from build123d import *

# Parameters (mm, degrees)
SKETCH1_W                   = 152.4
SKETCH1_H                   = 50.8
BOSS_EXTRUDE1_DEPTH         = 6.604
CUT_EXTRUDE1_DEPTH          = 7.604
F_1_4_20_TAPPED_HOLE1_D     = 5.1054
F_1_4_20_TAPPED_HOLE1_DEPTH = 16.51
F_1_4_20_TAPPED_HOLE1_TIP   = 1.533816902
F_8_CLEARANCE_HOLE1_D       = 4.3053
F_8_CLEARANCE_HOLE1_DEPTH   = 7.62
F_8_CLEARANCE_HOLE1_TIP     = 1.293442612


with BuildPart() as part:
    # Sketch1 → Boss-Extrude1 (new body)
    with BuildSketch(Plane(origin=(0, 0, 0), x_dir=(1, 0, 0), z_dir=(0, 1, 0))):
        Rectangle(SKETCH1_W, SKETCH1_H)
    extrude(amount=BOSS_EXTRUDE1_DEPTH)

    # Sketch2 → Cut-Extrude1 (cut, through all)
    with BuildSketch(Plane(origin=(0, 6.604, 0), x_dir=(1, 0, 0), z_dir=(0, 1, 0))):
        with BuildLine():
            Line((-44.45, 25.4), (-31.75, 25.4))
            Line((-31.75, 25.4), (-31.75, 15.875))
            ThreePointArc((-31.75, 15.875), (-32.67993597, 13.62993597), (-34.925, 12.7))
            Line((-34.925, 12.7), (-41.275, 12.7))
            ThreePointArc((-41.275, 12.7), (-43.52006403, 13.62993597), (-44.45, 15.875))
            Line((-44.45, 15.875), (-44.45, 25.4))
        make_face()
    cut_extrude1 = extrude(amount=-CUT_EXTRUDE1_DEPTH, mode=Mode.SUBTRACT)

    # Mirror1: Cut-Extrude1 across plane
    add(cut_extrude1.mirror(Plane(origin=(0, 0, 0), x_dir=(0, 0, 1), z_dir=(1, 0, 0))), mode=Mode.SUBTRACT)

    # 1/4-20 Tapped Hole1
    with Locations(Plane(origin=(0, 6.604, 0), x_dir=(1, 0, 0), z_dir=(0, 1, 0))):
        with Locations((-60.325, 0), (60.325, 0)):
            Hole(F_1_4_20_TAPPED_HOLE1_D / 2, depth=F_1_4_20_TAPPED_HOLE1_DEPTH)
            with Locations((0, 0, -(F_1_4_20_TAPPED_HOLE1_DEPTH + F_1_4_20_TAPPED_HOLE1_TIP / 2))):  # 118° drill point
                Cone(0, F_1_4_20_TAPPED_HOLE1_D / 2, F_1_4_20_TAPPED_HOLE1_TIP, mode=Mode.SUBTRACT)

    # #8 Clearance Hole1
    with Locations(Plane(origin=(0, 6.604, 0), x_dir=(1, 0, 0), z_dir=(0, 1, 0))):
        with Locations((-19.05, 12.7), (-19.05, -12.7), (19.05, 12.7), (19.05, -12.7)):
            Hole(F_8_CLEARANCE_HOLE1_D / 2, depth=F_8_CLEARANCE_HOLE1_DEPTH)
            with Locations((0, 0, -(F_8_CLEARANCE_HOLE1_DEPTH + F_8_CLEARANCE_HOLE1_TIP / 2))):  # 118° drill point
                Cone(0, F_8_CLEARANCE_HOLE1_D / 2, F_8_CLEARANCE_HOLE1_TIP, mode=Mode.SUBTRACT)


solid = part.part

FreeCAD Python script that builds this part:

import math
import FreeCAD as App
import Part
import Sketcher
from FreeCAD import Vector
Q = App.Units.Quantity


def add_polygon(sketch, points):
    """Adds a closed chain of lines whose ends are joined by coincident constraints."""
    first, n = sketch.GeometryCount, len(points)
    for a, b in zip(points, points[1:] + points[:1]):
        sketch.addGeometry(Part.LineSegment(App.Vector(*a, 0), App.Vector(*b, 0)), False)
    for i in range(n):
        sketch.addConstraint(Sketcher.Constraint("Coincident", first + i, 2, first + (i + 1) % n, 1))

doc = App.newDocument("Part")
body = doc.addObject("PartDesign::Body", "Body")

sketch1 = body.newObject("Sketcher::SketchObject", "Sketch")
sketch1.AttachmentSupport = (doc.getObject("XZ_Plane"), [""])
sketch1.MapMode = "FlatFace"
add_polygon(sketch1, [(-76.2, -25.4), (-76.2, 25.4), (76.2, 25.4), (76.2, -25.4)])
sketch1.addConstraint(Sketcher.Constraint("Vertical", 0))
sketch1.addConstraint(Sketcher.Constraint("Horizontal", 1))
sketch1.addConstraint(Sketcher.Constraint("Vertical", 2))
sketch1.addConstraint(Sketcher.Constraint("Horizontal", 3))
sketch1.addConstraint(Sketcher.Constraint("Symmetric", 0, 2, 2, 2, -1, 1))
sketch1.addConstraint(Sketcher.Constraint("DistanceX", 1, 1, 1, 2, Q("6 in")))
sketch1.addConstraint(Sketcher.Constraint("DistanceY", 0, 1, 0, 2, Q("2 in")))
pad1 = body.newObject("PartDesign::Pad", "Pad")
pad1.Profile = sketch1
pad1.Length = Q("0.26 in")
pad1.Reversed = True

sketch2 = body.newObject("Sketcher::SketchObject", "Sketch001")
sketch2.AttachmentSupport = (doc.getObject("XZ_Plane"), [""])
sketch2.MapMode = "FlatFace"
sketch2.AttachmentOffset = App.Placement(Vector(0, 0, -0.26 * 25.4), App.Rotation())
sketch2.addGeometry(Part.LineSegment(Vector(-31.75, -25.4, 0), Vector(-44.45, -25.4, 0)), False)
sketch2.addGeometry(Part.LineSegment(Vector(-44.45, -25.4, 0), Vector(-44.45, -15.875, 0)), False)
sketch2.addGeometry(Part.ArcOfCircle(Part.Circle(Vector(-41.275, -15.875, 0), Vector(0, 0, 1), 3.175), math.radians(90), math.radians(180)), False)
sketch2.addGeometry(Part.LineSegment(Vector(-41.275, -12.7, 0), Vector(-34.925, -12.7, 0)), False)
sketch2.addGeometry(Part.ArcOfCircle(Part.Circle(Vector(-34.925, -15.875, 0), Vector(0, 0, 1), 3.175), math.radians(0), math.radians(90)), False)
sketch2.addGeometry(Part.LineSegment(Vector(-31.75, -15.875, 0), Vector(-31.75, -25.4, 0)), False)
sketch2.addConstraint(Sketcher.Constraint("Coincident", 0, 2, 1, 1))
sketch2.addConstraint(Sketcher.Constraint("Tangent", 1, 2, 2, 2))
sketch2.addConstraint(Sketcher.Constraint("Tangent", 2, 1, 3, 1))
sketch2.addConstraint(Sketcher.Constraint("Tangent", 3, 2, 4, 2))
sketch2.addConstraint(Sketcher.Constraint("Tangent", 4, 1, 5, 1))
sketch2.addConstraint(Sketcher.Constraint("Coincident", 5, 2, 0, 1))
sketch2.addConstraint(Sketcher.Constraint("Horizontal", 0))
sketch2.addConstraint(Sketcher.Constraint("Vertical", 1))
sketch2.addConstraint(Sketcher.Constraint("Horizontal", 3))
sketch2.addConstraint(Sketcher.Constraint("Vertical", 5))
sketch2.addConstraint(Sketcher.Constraint("Equal", 2, 4))
sketch2.addConstraint(Sketcher.Constraint("DistanceX", 0, 2, 0, 1, Q("0.5 in")))
sketch2.addConstraint(Sketcher.Constraint("DistanceY", 0, 2, -1, 1, Q("1 in")))
sketch2.addConstraint(Sketcher.Constraint("Radius", 2, Q("0.125 in")))
sketch2.addConstraint(Sketcher.Constraint("DistanceY", 2, 1, -1, 1, Q("0.5 in")))
sketch2.addConstraint(Sketcher.Constraint("DistanceX", 0, 2, -1, 1, Q("1.75 in")))
pocket1 = body.newObject("PartDesign::Pocket", "Pocket")
pocket1.Profile = sketch2
pocket1.Type = "ThroughAll"
pocket1.Reversed = True
doc.recompute()

mirrored = body.newObject("PartDesign::Mirrored", "Mirrored")
mirrored.Originals = [pocket1]
mirrored.MirrorPlane = (doc.getObject("YZ_Plane"), [""])
body.Tip = mirrored

sketch3 = body.newObject("Sketcher::SketchObject", "Sketch002")
sketch3.AttachmentSupport = (doc.getObject("XZ_Plane"), [""])
sketch3.MapMode = "FlatFace"
sketch3.AttachmentOffset = App.Placement(Vector(0, 0, -0.26 * 25.4), App.Rotation())
sketch3.addGeometry(Part.Circle(Vector(-60.325, 0, 0), Vector(0, 0, 1), 2.5527), False)
sketch3.addGeometry(Part.Circle(Vector(60.325, 0, 0), Vector(0, 0, 1), 2.5527), False)
sketch3.addConstraint(Sketcher.Constraint("Equal", 0, 1))
sketch3.addConstraint(Sketcher.Constraint("Symmetric", 0, 3, 1, 3, -1, 1))
sketch3.addConstraint(Sketcher.Constraint("PointOnObject", 0, 3, -1))
sketch3.addConstraint(Sketcher.Constraint("Diameter", 0, Q("0.201 in")))
sketch3.addConstraint(Sketcher.Constraint("DistanceX", 0, 3, 1, 3, Q("4.75 in")))
doc.recompute()
hole = body.newObject("PartDesign::Hole", "Hole")
hole.Profile = sketch3
hole.ThreadType = "None"
hole.Diameter = Q("0.201 in")
hole.DepthType = "Dimension"
hole.Depth = Q("0.65 in")
hole.DrillPoint = "Angled"
hole.DrillPointAngle = 118
hole.Reversed = True

sketch4 = body.newObject("Sketcher::SketchObject", "Sketch003")
sketch4.AttachmentSupport = (doc.getObject("XZ_Plane"), [""])
sketch4.MapMode = "FlatFace"
sketch4.AttachmentOffset = App.Placement(Vector(0, 0, -0.26 * 25.4), App.Rotation())
sketch4.addGeometry(Part.Circle(Vector(-19.05, -12.7, 0), Vector(0, 0, 1), 2.15265), False)
sketch4.addGeometry(Part.Circle(Vector(-19.05, 12.7, 0), Vector(0, 0, 1), 2.15265), False)
sketch4.addGeometry(Part.Circle(Vector(19.05, -12.7, 0), Vector(0, 0, 1), 2.15265), False)
sketch4.addGeometry(Part.Circle(Vector(19.05, 12.7, 0), Vector(0, 0, 1), 2.15265), False)
sketch4.addConstraint(Sketcher.Constraint("Equal", 0, 1))
sketch4.addConstraint(Sketcher.Constraint("Equal", 1, 2))
sketch4.addConstraint(Sketcher.Constraint("Equal", 2, 3))
sketch4.addConstraint(Sketcher.Constraint("Symmetric", 1, 3, 2, 3, -1, 1))
sketch4.addConstraint(Sketcher.Constraint("Symmetric", 0, 3, 3, 3, -1, 1))
sketch4.addConstraint(Sketcher.Constraint("Symmetric", 0, 3, 2, 3, -2))
sketch4.addConstraint(Sketcher.Constraint("DistanceY", 0, 3, 1, 3, Q("1 in")))
sketch4.addConstraint(Sketcher.Constraint("Diameter", 0, Q("0.1695 in")))
sketch4.addConstraint(Sketcher.Constraint("DistanceX", 0, 3, 2, 3, Q("1.5 in")))
doc.recompute()
hole2 = body.newObject("PartDesign::Hole", "Hole001")
hole2.Profile = sketch4
hole2.ThreadType = "None"
hole2.Diameter = Q("0.1695 in")
hole2.DepthType = "Dimension"
hole2.Depth = Q("0.3 in")
hole2.DrillPoint = "Angled"
hole2.DrillPointAngle = 118
hole2.Reversed = True

doc.recompute()
